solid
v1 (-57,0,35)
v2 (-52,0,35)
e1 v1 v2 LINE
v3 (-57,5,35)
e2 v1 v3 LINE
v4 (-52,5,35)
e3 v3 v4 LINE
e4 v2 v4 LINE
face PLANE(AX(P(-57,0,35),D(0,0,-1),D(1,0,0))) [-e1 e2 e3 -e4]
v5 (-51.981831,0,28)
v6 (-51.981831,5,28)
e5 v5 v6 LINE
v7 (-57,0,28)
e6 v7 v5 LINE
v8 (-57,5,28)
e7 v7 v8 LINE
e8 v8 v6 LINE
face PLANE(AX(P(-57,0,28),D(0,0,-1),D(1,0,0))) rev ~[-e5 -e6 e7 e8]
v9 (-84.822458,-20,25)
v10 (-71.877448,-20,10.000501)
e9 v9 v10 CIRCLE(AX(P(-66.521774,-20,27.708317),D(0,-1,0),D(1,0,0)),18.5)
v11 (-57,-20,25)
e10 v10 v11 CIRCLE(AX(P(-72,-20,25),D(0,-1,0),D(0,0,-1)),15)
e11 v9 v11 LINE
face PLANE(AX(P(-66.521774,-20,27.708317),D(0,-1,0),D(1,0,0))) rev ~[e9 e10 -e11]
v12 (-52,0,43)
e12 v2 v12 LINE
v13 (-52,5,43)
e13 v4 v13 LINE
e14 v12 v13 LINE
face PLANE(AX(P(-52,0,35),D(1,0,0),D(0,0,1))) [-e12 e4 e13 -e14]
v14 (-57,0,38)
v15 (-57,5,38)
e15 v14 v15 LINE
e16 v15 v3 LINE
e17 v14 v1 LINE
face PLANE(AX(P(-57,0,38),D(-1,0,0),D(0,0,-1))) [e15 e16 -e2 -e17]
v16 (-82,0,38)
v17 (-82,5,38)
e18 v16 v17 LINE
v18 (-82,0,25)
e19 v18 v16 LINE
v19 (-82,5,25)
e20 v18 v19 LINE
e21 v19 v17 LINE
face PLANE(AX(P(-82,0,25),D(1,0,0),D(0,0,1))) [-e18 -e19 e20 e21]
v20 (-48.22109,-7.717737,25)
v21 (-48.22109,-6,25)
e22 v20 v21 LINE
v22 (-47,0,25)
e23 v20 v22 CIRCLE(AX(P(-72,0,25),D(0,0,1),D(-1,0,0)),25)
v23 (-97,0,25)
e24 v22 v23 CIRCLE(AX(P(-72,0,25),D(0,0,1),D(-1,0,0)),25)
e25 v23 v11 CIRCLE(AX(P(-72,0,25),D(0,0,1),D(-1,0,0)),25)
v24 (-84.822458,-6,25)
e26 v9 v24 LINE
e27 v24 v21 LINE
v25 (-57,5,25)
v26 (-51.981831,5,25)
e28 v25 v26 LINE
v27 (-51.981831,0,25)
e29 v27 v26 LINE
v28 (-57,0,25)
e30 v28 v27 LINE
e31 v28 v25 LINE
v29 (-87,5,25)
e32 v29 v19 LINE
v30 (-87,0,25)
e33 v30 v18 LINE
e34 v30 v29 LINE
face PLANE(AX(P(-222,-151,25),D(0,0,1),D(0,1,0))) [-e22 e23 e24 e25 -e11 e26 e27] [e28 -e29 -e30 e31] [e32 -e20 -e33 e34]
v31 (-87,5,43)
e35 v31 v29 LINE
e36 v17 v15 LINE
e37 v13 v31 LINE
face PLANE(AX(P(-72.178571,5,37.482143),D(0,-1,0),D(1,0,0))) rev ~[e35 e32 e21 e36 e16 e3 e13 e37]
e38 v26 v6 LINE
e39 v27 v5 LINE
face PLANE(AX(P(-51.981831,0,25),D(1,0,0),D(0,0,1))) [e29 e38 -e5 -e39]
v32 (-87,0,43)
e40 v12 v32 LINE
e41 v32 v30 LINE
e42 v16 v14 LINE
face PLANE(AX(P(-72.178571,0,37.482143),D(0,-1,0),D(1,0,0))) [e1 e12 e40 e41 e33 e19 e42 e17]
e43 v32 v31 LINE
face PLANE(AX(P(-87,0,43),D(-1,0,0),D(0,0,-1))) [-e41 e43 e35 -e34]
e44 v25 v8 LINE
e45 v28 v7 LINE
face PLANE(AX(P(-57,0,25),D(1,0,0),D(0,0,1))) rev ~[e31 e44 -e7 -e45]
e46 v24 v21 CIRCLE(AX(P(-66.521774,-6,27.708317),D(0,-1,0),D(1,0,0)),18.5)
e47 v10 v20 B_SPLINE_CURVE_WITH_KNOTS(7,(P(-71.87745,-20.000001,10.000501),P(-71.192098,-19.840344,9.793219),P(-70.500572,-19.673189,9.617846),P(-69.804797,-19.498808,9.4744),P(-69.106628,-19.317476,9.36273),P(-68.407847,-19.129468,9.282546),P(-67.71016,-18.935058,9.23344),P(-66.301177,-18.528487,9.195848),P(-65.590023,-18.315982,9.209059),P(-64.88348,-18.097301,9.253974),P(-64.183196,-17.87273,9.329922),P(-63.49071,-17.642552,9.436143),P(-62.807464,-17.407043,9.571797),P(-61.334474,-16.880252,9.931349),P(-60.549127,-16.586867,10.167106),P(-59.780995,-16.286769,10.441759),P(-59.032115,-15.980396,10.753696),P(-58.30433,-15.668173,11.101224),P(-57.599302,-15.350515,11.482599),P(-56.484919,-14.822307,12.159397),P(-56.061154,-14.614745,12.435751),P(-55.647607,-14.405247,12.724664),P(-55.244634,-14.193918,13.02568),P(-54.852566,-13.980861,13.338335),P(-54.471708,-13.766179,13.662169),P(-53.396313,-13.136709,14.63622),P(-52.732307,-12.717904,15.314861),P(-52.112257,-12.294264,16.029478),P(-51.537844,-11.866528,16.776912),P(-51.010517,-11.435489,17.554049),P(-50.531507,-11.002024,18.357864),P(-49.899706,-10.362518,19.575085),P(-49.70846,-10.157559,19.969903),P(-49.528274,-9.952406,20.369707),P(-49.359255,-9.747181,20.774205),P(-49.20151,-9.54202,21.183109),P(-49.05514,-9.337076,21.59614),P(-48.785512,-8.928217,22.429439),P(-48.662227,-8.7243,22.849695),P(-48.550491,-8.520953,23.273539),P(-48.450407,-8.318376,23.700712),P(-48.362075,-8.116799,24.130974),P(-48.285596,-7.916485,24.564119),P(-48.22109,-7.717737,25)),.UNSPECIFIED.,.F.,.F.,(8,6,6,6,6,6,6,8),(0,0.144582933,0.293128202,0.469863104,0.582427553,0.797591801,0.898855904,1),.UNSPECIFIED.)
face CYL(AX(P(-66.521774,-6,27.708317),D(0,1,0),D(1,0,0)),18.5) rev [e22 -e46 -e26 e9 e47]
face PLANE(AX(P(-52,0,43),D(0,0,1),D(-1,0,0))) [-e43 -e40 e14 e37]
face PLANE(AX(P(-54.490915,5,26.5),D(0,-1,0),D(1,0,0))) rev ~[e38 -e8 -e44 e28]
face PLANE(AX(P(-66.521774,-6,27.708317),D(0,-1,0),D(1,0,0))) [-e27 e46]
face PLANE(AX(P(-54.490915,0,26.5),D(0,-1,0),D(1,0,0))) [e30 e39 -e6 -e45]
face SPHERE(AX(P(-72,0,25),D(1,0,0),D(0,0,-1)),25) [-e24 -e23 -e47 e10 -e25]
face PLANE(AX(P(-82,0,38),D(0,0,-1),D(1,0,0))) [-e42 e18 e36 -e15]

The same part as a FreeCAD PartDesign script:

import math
import FreeCAD as App
import Part
import Sketcher
Q = App.Units.Quantity

doc = App.newDocument("Part")
body = doc.addObject("PartDesign::Body", "Body")

# Sketch on XY plane
sketch1 = body.newObject("Sketcher::SketchObject", "Sketch")
sketch1.AttachmentSupport = (doc.getObject("XY_Plane"), [""])
sketch1.MapMode = "FlatFace"
sketch1.addGeometry(Part.Circle(App.Vector(53, 37, 0), App.Vector(0, 0, 1), 18), False)
sketch1.addConstraint([
    Sketcher.Constraint("Diameter", 0, Q("37 mm")),
    Sketcher.Constraint("DistanceX", -1, 1, 0, 3, Q("53.478226 mm")),
    Sketcher.Constraint("DistanceY", -1, 1, 0, 3, Q("36.958317 mm")),
])
pad1 = body.newObject("PartDesign::Pad", "Pad")
pad1.Profile = sketch1
pad1.Length = 14
body2 = doc.addObject("PartDesign::Body", "Body001")
doc.recompute()

body.Placement = App.Placement(App.Vector(-48, -6, -9.25), App.Rotation(App.Vector(1, 0, 0), 90))
boolean = body2.newObject("PartDesign::Boolean", "Boolean")
boolean.Type = "Fuse"
boolean.addObjects([body])
body3 = doc.addObject("PartDesign::Body", "Body002")

# Sketch on XZ plane
sketch2 = body3.newObject("Sketcher::SketchObject", "Sketch001")
sketch2.AttachmentSupport = (doc.getObject("XZ_Plane002"), [""])
sketch2.MapMode = "FlatFace"
sketch2.addGeometry([
    Part.LineSegment(App.Vector(25, -10, 0), App.Vector(25, -13, 0)),
    Part.LineSegment(App.Vector(25, -13, 0), App.Vector(30, -13, 0)),
    Part.LineSegment(App.Vector(30, -13, 0), App.Vector(30, -10, 0)),
    Part.LineSegment(App.Vector(30, -10, 0), App.Vector(25, -10, 0)),
], False)
sketch2.addConstraint([
    Sketcher.Constraint("Coincident", 0, 2, 1, 1),
    Sketcher.Constraint("Coincident", 1, 2, 2, 1),
    Sketcher.Constraint("Coincident", 2, 2, 3, 1),
    Sketcher.Constraint("Coincident", 3, 2, 0, 1),
    Sketcher.Constraint("Vertical", 0),
    Sketcher.Constraint("Horizontal", 1),
    Sketcher.Constraint("Vertical", 2),
    Sketcher.Constraint("Horizontal", 3),
    Sketcher.Constraint("DistanceY", 0, 2, 0, 1, Q("3 mm")),
    Sketcher.Constraint("DistanceX", -1, 1, 0, 2, Q("25 mm")),
    Sketcher.Constraint("DistanceY", 0, 2, -1, 1, Q("13 mm")),
    Sketcher.Constraint("DistanceX", 1, 1, 1, 2, Q("5.018169 mm")),
])
pad2 = body3.newObject("PartDesign::Pad", "Pad001")
pad2.Profile = sketch2
pad2.Length = 5
pad2.Reversed = True
body4 = doc.addObject("PartDesign::Body", "Body003")

# Sketch on XY plane
sketch3 = body4.newObject("Sketcher::SketchObject", "Sketch002")
sketch3.AttachmentSupport = (doc.getObject("XY_Plane003"), [""])
sketch3.MapMode = "FlatFace"
sketch3.AttachmentOffset = App.Placement(App.Vector(0, 0, -150), App.Rotation())
sketch3.addGeometry([
    Part.LineSegment(App.Vector(0, 169, 0), App.Vector(0, -151, 0)),
    Part.LineSegment(App.Vector(0, -151, 0), App.Vector(210, -151, 0)),
    Part.LineSegment(App.Vector(210, -151, 0), App.Vector(210, 169, 0)),
    Part.LineSegment(App.Vector(210, 169, 0), App.Vector(0, 169, 0)),
], False)
sketch3.addConstraint([
    Sketcher.Constraint("Coincident", 0, 2, 1, 1),
    Sketcher.Constraint("Coincident", 1, 2, 2, 1),
    Sketcher.Constraint("Coincident", 2, 2, 3, 1),
    Sketcher.Constraint("Coincident", 3, 2, 0, 1),
    Sketcher.Constraint("Vertical", 0),
    Sketcher.Constraint("Horizontal", 1),
    Sketcher.Constraint("Vertical", 2),
    Sketcher.Constraint("Horizontal", 3),
    Sketcher.Constraint("PointOnObject", 0, 2, -2),
    Sketcher.Constraint("DistanceX", 1, 1, 1, 2, Q("210 mm")),
    Sketcher.Constraint("DistanceY", 0, 2, 0, 1, Q("320 mm")),
    Sketcher.Constraint("DistanceY", 0, 2, -1, 1, Q("151 mm")),
])
pad3 = body4.newObject("PartDesign::Pad", "Pad002")
pad3.Profile = sketch3
pad3.Length = 320
body5 = doc.addObject("PartDesign::Body", "Body004")

# Sketch on XZ plane
sketch4 = body5.newObject("Sketcher::SketchObject", "Sketch003")
sketch4.AttachmentSupport = (doc.getObject("XZ_Plane004"), [""])
sketch4.MapMode = "FlatFace"
sketch4.addGeometry([
    Part.ArcOfCircle(Part.Circle(App.Vector(0, 0, 0), App.Vector(0, 0, 1), 150), math.radians(-90), math.radians(90)),
    Part.LineSegment(App.Vector(0, 150, 0), App.Vector(0, -150, 0)),
], False)
sketch4.addConstraint([
    Sketcher.Constraint("Coincident", 0, 1, 1, 2),
    Sketcher.Constraint("Coincident", 1, 1, 0, 2),
    Sketcher.Constraint("Vertical", 1),
    Sketcher.Constraint("Coincident", 0, 3, -1, 1),
    Sketcher.Constraint("PointOnObject", 0, 1, -2),
    Sketcher.Constraint("Radius", 0, Q("150 mm")),
])
revolution = body5.newObject("PartDesign::Revolution", "Revolution")
revolution.Profile = sketch4
revolution.ReferenceAxis = (sketch4, ["V_Axis"])
revolution.Angle = 360
doc.recompute()

boolean2 = body5.newObject("PartDesign::Boolean", "Boolean001")
boolean2.Type = "Cut"
boolean2.addObjects([body4])
body6 = doc.addObject("PartDesign::Body", "Body005")

# Sketch on XZ plane
sketch5 = body6.newObject("Sketcher::SketchObject", "Sketch004")
sketch5.AttachmentSupport = (doc.getObject("XZ_Plane005"), [""])
sketch5.MapMode = "FlatFace"
sketch5.addGeometry([
    Part.ArcOfCircle(Part.Circle(App.Vector(0, 0, 0), App.Vector(0, 0, 1), 25), math.radians(-90), math.radians(90)),
    Part.LineSegment(App.Vector(0, 25, 0), App.Vector(0, -25, 0)),
], False)
sketch5.addConstraint([
    Sketcher.Constraint("Coincident", 0, 1, 1, 2),
    Sketcher.Constraint("Coincident", 1, 1, 0, 2),
    Sketcher.Constraint("Vertical", 1),
    Sketcher.Constraint("Coincident", 0, 3, -1, 1),
    Sketcher.Constraint("PointOnObject", 0, 1, -2),
    Sketcher.Constraint("Radius", 0, Q("25 mm")),
])
revolution2 = body6.newObject("PartDesign::Revolution", "Revolution001")
revolution2.Profile = sketch5
revolution2.ReferenceAxis = (sketch5, ["V_Axis"])
revolution2.Angle = 360
doc.recompute()

boolean3 = body6.newObject("PartDesign::Boolean", "Boolean002")
boolean3.Type = "Cut"
boolean3.addObjects([body5])
body7 = doc.addObject("PartDesign::Body", "Body006")
doc.recompute()

body6.Placement = App.Placement(App.Vector(10, 0, -13), App.Rotation(App.Vector(0, 1, 0), 90))
boolean4 = body7.newObject("PartDesign::Boolean", "Boolean003")
boolean4.Type = "Fuse"
boolean4.addObjects([body6])
body8 = doc.addObject("PartDesign::Body", "Body007")

# Sketch on XZ plane
sketch6 = body8.newObject("Sketcher::SketchObject", "Sketch005")
sketch6.AttachmentSupport = (doc.getObject("XZ_Plane007"), [""])
sketch6.MapMode = "FlatFace"
sketch6.addGeometry([
    Part.LineSegment(App.Vector(0, 0, 0), App.Vector(25, 0, 0)),  # 0
    Part.LineSegment(App.Vector(25, 0, 0), App.Vector(25, -3, 0)),  # 1
    Part.LineSegment(App.Vector(25, -3, 0), App.Vector(30, -3, 0)),  # 2
    Part.LineSegment(App.Vector(30, -3, 0), App.Vector(30, 5, 0)),  # 3
    Part.LineSegment(App.Vector(30, 5, 0), App.Vector(-5, 5, 0)),  # 4
    Part.LineSegment(App.Vector(-5, 5, 0), App.Vector(-5, -13, 0)),  # 5
    Part.LineSegment(App.Vector(-5, -13, 0), App.Vector(0, -13, 0)),  # 6
    Part.LineSegment(App.Vector(0, -13, 0), App.Vector(0, 0, 0)),  # 7
], False)
sketch6.addConstraint([
    Sketcher.Constraint("Coincident", 0, 2, 1, 1),
    Sketcher.Constraint("Coincident", 1, 2, 2, 1),
    Sketcher.Constraint("Coincident", 2, 2, 3, 1),
    Sketcher.Constraint("Coincident", 3, 2, 4, 1),
    Sketcher.Constraint("Coincident", 4, 2, 5, 1),
    Sketcher.Constraint("Coincident", 5, 2, 6, 1),
    Sketcher.Constraint("Coincident", 6, 2, 7, 1),
    Sketcher.Constraint("Coincident", 7, 2, 0, 1),
    Sketcher.Constraint("Horizontal", 0),
    Sketcher.Constraint("Vertical", 1),
    Sketcher.Constraint("Horizontal", 2),
    Sketcher.Constraint("Vertical", 3),
    Sketcher.Constraint("Horizontal", 4),
    Sketcher.Constraint("Vertical", 5),
    Sketcher.Constraint("Horizontal", 6),
    Sketcher.Constraint("Vertical", 7),
    Sketcher.Constraint("Coincident", 7, 2, -1, 1),
    Sketcher.Constraint("Equal", 2, 6),
    Sketcher.Constraint("DistanceX", 0, 1, 0, 2, Q("25 mm")),
    Sketcher.Constraint("DistanceX", 2, 1, 2, 2, Q("5 mm")),
    Sketcher.Constraint("DistanceY", 1, 2, 1, 1, Q("3 mm")),
    Sketcher.Constraint("DistanceY", 3, 1, 3, 2, Q("8 mm")),
    Sketcher.Constraint("DistanceY", 5, 2, 5, 1, Q("18 mm")),
])
pad4 = body8.newObject("PartDesign::Pad", "Pad003")
pad4.Profile = sketch6
pad4.Length = 5
pad4.Reversed = True
doc.recompute()

boolean5 = body8.newObject("PartDesign::Boolean", "Boolean004")
boolean5.Type = "Fuse"
boolean5.addObjects([body7])
doc.recompute()

boolean6 = body8.newObject("PartDesign::Boolean", "Boolean005")
boolean6.Type = "Fuse"
boolean6.addObjects([body3])
body9 = doc.addObject("PartDesign::Body", "Body008")
doc.recompute()

body8.Placement = App.Placement(App.Vector(-10, 0, 38), App.Rotation(App.Vector(0, 0, 1), 0))
boolean7 = body9.newObject("PartDesign::Boolean", "Boolean006")
boolean7.Type = "Fuse"
boolean7.addObjects([body8])
doc.recompute()

boolean8 = body9.newObject("PartDesign::Boolean", "Boolean007")
boolean8.Type = "Cut"
boolean8.addObjects([body2])
body10 = doc.addObject("PartDesign::Body", "Body009")
doc.recompute()

body9.Placement = App.Placement(App.Vector(-72, 0, 0), App.Rotation(App.Vector(0, 0, 1), 0))
boolean9 = body10.newObject("PartDesign::Boolean", "Boolean008")
boolean9.Type = "Fuse"
boolean9.addObjects([body9])

doc.recompute()
